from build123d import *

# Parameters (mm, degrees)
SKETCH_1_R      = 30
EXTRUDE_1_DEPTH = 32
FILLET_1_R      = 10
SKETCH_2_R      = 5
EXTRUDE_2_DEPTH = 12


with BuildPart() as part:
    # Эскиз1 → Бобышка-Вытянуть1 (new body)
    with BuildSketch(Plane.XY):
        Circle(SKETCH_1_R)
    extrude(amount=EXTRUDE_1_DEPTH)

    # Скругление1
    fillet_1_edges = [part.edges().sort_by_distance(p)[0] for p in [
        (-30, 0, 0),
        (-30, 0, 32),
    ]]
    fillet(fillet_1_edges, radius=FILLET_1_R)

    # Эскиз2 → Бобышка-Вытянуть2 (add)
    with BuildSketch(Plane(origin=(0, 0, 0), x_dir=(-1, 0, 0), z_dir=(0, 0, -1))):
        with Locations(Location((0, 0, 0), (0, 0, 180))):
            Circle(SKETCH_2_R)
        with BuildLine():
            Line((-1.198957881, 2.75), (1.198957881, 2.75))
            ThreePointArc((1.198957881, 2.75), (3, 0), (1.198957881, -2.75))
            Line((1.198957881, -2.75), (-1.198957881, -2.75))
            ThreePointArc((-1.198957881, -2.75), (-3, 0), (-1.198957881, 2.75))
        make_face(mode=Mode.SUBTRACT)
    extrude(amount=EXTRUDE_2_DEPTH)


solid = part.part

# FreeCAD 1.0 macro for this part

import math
import FreeCAD as App
import Part
import Sketcher
from FreeCAD import Vector


def edges_at(feature, points):
    """Names of the edges that pass closest to the given points."""
    edges = feature.Shape.Edges
    near = lambda p: min(range(len(edges)), key=lambda i: edges[i].distToShape(Part.Vertex(*p))[0])
    return sorted({f"Edge{near(p) + 1}" for p in points})

doc = App.newDocument("Part")
params = doc.addObject("Spreadsheet::Sheet", "Params")
for row, (alias, value) in enumerate([
    ("sketch1_diameter", "60 mm"),
    ("pad1_length", "32 mm"),
    ("fillet_radius", "10 mm"),
    ("sketch2_diameter", "10 mm"),
    ("sketch2_radius", "3 mm"),
    ("pad2_length", "12 mm"),
], start=1):
    params.set(f"A{row}", alias)
    params.set(f"B{row}", "=" + value)
    params.setAlias(f"B{row}", alias)

body = doc.addObject("PartDesign::Body", "Body")

# Sketch on XY plane
sketch1 = body.newObject("Sketcher::SketchObject", "Sketch")
sketch1.AttachmentSupport = (doc.getObject("XY_Plane"), [""])
sketch1.MapMode = "FlatFace"
sketch1.addGeometry(Part.Circle(Vector(0, 0, 0), Vector(0, 0, 1), 30), False)
sketch1.addConstraint(Sketcher.Constraint("Coincident", 0, 3, -1, 1))
sketch1.addConstraint(Sketcher.Constraint("Diameter", 0, 60.0))
sketch1.setExpression("Constraints[1]", "Params.sketch1_diameter")
pad1 = body.newObject("PartDesign::Pad", "Pad")
pad1.Profile = sketch1
pad1.setExpression("Length", "Params.pad1_length")
doc.recompute()

fillet = body.newObject("PartDesign::Fillet", "Fillet")
fillet.Base = (pad1, edges_at(pad1, [(-30, 0, 0), (-30, 0, 32)]))
fillet.setExpression("Radius", "Params.fillet_radius")

# Sketch on XY plane
sketch2 = body.newObject("Sketcher::SketchObject", "Sketch001")
sketch2.AttachmentSupport = (doc.getObject("XY_Plane"), [""])
sketch2.MapMode = "FlatFace"
sketch2.addGeometry(Part.Circle(Vector(0, 0, 0), Vector(0, 0, 1), 5), False)
sketch2.addGeometry(Part.ArcOfCircle(Part.Circle(Vector(0, 0, 0), Vector(0, 0, 1), 3), math.radians(-66), math.radians(66)), False)
sketch2.addGeometry(Part.LineSegment(Vector(1.2, 2.8, 0), Vector(-1.2, 2.8, 0)), False)
sketch2.addGeometry(Part.ArcOfCircle(Part.Circle(Vector(0, 0, 0), Vector(0, 0, 1), 3), math.radians(114), math.radians(246)), False)
sketch2.addGeometry(Part.LineSegment(Vector(-1.2, -2.8, 0), Vector(1.2, -2.8, 0)), False)
sketch2.addConstraint(Sketcher.Constraint("Coincident", 1, 2, 2, 1))
sketch2.addConstraint(Sketcher.Constraint("Coincident", 2, 2, 3, 1))
sketch2.addConstraint(Sketcher.Constraint("Coincident", 3, 2, 4, 1))
sketch2.addConstraint(Sketcher.Constraint("Coincident", 4, 2, 1, 1))
sketch2.addConstraint(Sketcher.Constraint("Horizontal", 2))
sketch2.addConstraint(Sketcher.Constraint("Horizontal", 4))
sketch2.addConstraint(Sketcher.Constraint("Coincident", 0, 3, -1, 1))
sketch2.addConstraint(Sketcher.Constraint("Coincident", 1, 3, -1, 1))
sketch2.addConstraint(Sketcher.Constraint("Coincident", 3, 3, -1, 1))
sketch2.addConstraint(Sketcher.Constraint("Equal", 1, 3))
sketch2.addConstraint(Sketcher.Constraint("Vertical", 2, 2, 3, 2))
sketch2.addConstraint(Sketcher.Constraint("Diameter", 0, 10.0))
sketch2.addConstraint(Sketcher.Constraint("Radius", 1, 3.0))
sketch2.addConstraint(Sketcher.Constraint("DistanceY", 3, 2, 2, 2, 5.5))
sketch2.setExpression("Constraints[11]", "Params.sketch2_diameter")
sketch2.setExpression("Constraints[12]", "Params.sketch2_radius")
pad2 = body.newObject("PartDesign::Pad", "Pad001")
pad2.Profile = sketch2
pad2.setExpression("Length", "Params.pad2_length")
pad2.Reversed = True

doc.recompute()
